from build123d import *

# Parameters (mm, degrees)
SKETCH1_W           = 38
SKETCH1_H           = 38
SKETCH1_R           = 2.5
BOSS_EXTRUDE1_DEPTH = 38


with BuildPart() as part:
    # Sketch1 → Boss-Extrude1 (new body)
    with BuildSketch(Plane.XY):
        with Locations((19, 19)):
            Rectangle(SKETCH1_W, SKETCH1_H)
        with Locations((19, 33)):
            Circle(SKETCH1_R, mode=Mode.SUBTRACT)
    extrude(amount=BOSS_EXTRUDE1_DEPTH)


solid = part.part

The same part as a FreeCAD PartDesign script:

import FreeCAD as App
import Part
import Sketcher

V = App.Vector


def add_polygon(sketch, points):
    """Adds a closed chain of lines whose ends are joined by coincident constraints."""
    first, n = sketch.GeometryCount, len(points)
    for a, b in zip(points, points[1:] + points[:1]):
        sketch.addGeometry(Part.LineSegment(App.Vector(*a, 0), App.Vector(*b, 0)), False)
    for i in range(n):
        sketch.addConstraint(Sketcher.Constraint("Coincident", first + i, 2, first + (i + 1) % n, 1))

doc = App.newDocument("Part")
params = doc.addObject("Spreadsheet::Sheet", "Params")
for row, (alias, value) in enumerate([
    ("sketch1_diameter", "5 mm"),
    ("sketch1_width", "38 mm"),
    ("pad1_length", "38 mm"),
], start=1):
    params.set(f"A{row}", alias)
    params.set(f"B{row}", "=" + value)
    params.setAlias(f"B{row}", alias)

body = doc.addObject("PartDesign::Body", "Body")

# Sketch on XY plane
sketch1 = body.newObject("Sketcher::SketchObject", "Sketch")
sketch1.AttachmentSupport = (doc.getObject("XY_Plane"), [""])
sketch1.MapMode = "FlatFace"
add_polygon(sketch1, [(0, 38), (0, 0), (38, 0), (38, 38)])  # lines 0-3
sketch1.addGeometry(Part.Circle(V(19, 33, 0), V(0, 0, 1), 2.5), False)  # 4
sketch1.addConstraint(Sketcher.Constraint("Vertical", 0))
sketch1.addConstraint(Sketcher.Constraint("Horizontal", 1))
sketch1.addConstraint(Sketcher.Constraint("Vertical", 2))
sketch1.addConstraint(Sketcher.Constraint("Horizontal", 3))
sketch1.addConstraint(Sketcher.Constraint("Coincident", 0, 2, -1, 1))
sketch1.addConstraint(Sketcher.Constraint("Equal", 3, 0))
sketch1.addConstraint(Sketcher.Constraint("Diameter", 4, 5.0))
sketch1.addConstraint(Sketcher.Constraint("DistanceX", 1, 1, 1, 2, 38.0))
sketch1.addConstraint(Sketcher.Constraint("DistanceX", -1, 1, 4, 3, 19.0))
sketch1.addConstraint(Sketcher.Constraint("DistanceY", -1, 1, 4, 3, 33.0))
sketch1.setExpression("Constraints[10]", "Params.sketch1_diameter")
sketch1.setExpression("Constraints[11]", "Params.sketch1_width")
pad1 = body.newObject("PartDesign::Pad", "Pad")
pad1.Profile = sketch1
pad1.setExpression("Length", "Params.pad1_length")

doc.recompute()
